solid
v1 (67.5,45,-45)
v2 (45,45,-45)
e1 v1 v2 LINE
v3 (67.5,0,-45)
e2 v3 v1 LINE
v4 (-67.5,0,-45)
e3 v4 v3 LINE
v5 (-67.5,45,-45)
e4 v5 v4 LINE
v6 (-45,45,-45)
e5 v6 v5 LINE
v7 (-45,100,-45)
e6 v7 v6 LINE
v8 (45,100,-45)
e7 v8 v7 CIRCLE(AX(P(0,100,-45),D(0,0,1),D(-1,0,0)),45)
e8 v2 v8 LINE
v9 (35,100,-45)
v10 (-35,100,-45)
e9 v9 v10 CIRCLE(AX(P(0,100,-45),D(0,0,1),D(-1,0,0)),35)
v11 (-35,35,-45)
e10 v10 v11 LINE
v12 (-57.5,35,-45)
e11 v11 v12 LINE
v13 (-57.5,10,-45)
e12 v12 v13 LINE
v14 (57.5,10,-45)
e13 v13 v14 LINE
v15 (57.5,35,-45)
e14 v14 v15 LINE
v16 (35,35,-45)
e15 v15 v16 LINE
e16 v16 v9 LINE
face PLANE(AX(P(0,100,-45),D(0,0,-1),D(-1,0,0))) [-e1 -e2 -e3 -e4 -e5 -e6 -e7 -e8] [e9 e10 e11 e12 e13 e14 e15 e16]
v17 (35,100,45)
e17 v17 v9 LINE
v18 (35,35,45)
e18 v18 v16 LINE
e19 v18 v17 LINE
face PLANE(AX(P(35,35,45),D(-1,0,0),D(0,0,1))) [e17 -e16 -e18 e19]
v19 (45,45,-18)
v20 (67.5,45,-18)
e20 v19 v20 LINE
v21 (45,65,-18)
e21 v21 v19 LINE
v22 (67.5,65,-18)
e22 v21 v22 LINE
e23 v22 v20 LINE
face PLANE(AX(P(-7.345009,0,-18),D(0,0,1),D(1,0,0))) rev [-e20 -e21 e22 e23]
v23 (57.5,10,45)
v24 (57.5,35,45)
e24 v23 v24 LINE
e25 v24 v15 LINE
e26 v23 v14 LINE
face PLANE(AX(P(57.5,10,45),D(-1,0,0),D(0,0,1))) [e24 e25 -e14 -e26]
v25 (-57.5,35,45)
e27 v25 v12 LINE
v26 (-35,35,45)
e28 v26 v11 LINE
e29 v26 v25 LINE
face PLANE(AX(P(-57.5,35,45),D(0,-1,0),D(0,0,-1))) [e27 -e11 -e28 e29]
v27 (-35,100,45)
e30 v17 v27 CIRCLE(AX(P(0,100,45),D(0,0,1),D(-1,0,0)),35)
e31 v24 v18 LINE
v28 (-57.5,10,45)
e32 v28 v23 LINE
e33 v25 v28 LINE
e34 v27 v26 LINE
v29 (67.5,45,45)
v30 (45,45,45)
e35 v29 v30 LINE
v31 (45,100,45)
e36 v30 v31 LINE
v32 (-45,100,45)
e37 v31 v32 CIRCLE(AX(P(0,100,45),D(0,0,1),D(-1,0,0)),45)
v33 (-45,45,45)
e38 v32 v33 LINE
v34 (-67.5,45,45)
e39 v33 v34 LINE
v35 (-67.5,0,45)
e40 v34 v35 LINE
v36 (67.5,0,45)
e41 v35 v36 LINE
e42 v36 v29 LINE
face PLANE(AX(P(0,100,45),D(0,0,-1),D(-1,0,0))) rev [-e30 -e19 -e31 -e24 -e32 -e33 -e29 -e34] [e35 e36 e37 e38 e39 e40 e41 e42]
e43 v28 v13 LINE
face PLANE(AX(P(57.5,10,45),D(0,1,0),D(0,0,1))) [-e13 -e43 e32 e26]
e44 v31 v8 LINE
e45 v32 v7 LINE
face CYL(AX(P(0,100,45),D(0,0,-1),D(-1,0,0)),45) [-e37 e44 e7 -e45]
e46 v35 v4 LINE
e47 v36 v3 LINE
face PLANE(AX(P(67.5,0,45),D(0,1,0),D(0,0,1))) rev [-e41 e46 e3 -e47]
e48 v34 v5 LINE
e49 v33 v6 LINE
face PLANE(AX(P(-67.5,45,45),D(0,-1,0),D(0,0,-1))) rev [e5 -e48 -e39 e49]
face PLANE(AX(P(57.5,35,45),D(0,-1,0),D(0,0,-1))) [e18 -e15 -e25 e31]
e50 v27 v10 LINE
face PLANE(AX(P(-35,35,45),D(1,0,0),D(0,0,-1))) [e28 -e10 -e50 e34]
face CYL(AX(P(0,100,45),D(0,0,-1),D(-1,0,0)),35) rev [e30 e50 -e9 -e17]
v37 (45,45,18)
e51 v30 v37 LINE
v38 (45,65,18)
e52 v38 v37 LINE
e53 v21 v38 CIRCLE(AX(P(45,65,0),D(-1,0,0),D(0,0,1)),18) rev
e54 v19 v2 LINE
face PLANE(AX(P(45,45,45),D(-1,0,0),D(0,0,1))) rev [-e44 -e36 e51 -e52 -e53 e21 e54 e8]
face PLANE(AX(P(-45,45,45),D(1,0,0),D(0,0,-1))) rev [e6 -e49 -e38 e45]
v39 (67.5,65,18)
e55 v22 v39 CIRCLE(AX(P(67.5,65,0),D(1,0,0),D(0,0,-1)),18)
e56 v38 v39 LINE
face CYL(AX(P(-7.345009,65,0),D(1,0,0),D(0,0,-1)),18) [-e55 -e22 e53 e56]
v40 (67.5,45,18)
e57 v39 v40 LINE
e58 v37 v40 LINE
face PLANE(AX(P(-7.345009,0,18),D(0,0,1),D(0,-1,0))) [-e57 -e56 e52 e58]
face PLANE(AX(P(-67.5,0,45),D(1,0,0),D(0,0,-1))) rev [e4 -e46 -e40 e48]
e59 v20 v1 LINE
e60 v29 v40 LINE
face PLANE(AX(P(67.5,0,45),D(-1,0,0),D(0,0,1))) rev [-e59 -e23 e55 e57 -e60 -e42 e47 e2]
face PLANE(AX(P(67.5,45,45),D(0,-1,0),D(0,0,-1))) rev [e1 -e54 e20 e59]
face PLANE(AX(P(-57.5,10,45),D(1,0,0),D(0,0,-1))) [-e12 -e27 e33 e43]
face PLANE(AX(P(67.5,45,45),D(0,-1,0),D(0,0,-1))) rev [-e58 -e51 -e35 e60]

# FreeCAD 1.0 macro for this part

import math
import FreeCAD as App
import Part
import Sketcher
from FreeCAD import Vector

doc = App.newDocument("Part")
body = doc.addObject("PartDesign::Body", "Body")

sketch1 = doc.addObject("Sketcher::SketchObject", "Sketch")
body.addObject(sketch1)
sketch1.AttachmentSupport = (doc.XY_Plane, [""])
sketch1.MapMode = "FlatFace"
sketch1.addGeometry(Part.LineSegment(Vector(-67.5, 0, 0), Vector(67.5, 0, 0)), False)
sketch1.addGeometry(Part.LineSegment(Vector(67.5, 0, 0), Vector(67.5, 45, 0)), False)
sketch1.addGeometry(Part.LineSegment(Vector(67.5, 45, 0), Vector(45, 45, 0)), False)
sketch1.addGeometry(Part.LineSegment(Vector(45, 45, 0), Vector(45, 100, 0)), False)
sketch1.addGeometry(Part.ArcOfCircle(Part.Circle(Vector(0, 100, 0), Vector(0, 0, 1), 45), math.radians(0), math.radians(180)), False)
sketch1.addGeometry(Part.LineSegment(Vector(-45, 100, 0), Vector(-45, 45, 0)), False)
sketch1.addGeometry(Part.LineSegment(Vector(-45, 45, 0), Vector(-67.5, 45, 0)), False)
sketch1.addGeometry(Part.LineSegment(Vector(-67.5, 45, 0), Vector(-67.5, 0, 0)), False)
sketch1.addGeometry(Part.LineSegment(Vector(35, 35, 0), Vector(57.5, 35, 0)), False)
sketch1.addGeometry(Part.LineSegment(Vector(57.5, 35, 0), Vector(57.5, 10, 0)), False)
sketch1.addGeometry(Part.LineSegment(Vector(57.5, 10, 0), Vector(-57.5, 10, 0)), False)
sketch1.addGeometry(Part.LineSegment(Vector(-57.5, 10, 0), Vector(-57.5, 35, 0)), False)
sketch1.addGeometry(Part.LineSegment(Vector(-57.5, 35, 0), Vector(-35, 35, 0)), False)
sketch1.addGeometry(Part.LineSegment(Vector(-35, 35, 0), Vector(-35, 100, 0)), False)
sketch1.addGeometry(Part.ArcOfCircle(Part.Circle(Vector(0, 100, 0), Vector(0, 0, 1), 35), math.radians(0), math.radians(180)), False)
sketch1.addGeometry(Part.LineSegment(Vector(35, 100, 0), Vector(35, 35, 0)), False)
sketch1.addConstraint(Sketcher.Constraint("Coincident", 0, 2, 1, 1))
sketch1.addConstraint(Sketcher.Constraint("Coincident", 1, 2, 2, 1))
sketch1.addConstraint(Sketcher.Constraint("Coincident", 2, 2, 3, 1))
sketch1.addConstraint(Sketcher.Constraint("Tangent", 3, 2, 4, 1))
sketch1.addConstraint(Sketcher.Constraint("Tangent", 4, 2, 5, 1))
sketch1.addConstraint(Sketcher.Constraint("Coincident", 5, 2, 6, 1))
sketch1.addConstraint(Sketcher.Constraint("Coincident", 6, 2, 7, 1))
sketch1.addConstraint(Sketcher.Constraint("Coincident", 7, 2, 0, 1))
sketch1.addConstraint(Sketcher.Constraint("Coincident", 8, 2, 9, 1))
sketch1.addConstraint(Sketcher.Constraint("Coincident", 9, 2, 10, 1))
sketch1.addConstraint(Sketcher.Constraint("Coincident", 10, 2, 11, 1))
sketch1.addConstraint(Sketcher.Constraint("Coincident", 11, 2, 12, 1))
sketch1.addConstraint(Sketcher.Constraint("Coincident", 12, 2, 13, 1))
sketch1.addConstraint(Sketcher.Constraint("Tangent", 13, 2, 14, 2))
sketch1.addConstraint(Sketcher.Constraint("Tangent", 14, 1, 15, 1))
sketch1.addConstraint(Sketcher.Constraint("Coincident", 15, 2, 8, 1))
sketch1.addConstraint(Sketcher.Constraint("Horizontal", 0))
sketch1.addConstraint(Sketcher.Constraint("Vertical", 1))
sketch1.addConstraint(Sketcher.Constraint("Horizontal", 2))
sketch1.addConstraint(Sketcher.Constraint("Vertical", 3))
sketch1.addConstraint(Sketcher.Constraint("Vertical", 5))
sketch1.addConstraint(Sketcher.Constraint("Horizontal", 6))
sketch1.addConstraint(Sketcher.Constraint("Vertical", 7))
sketch1.addConstraint(Sketcher.Constraint("Horizontal", 8))
sketch1.addConstraint(Sketcher.Constraint("Vertical", 9))
sketch1.addConstraint(Sketcher.Constraint("Horizontal", 10))
sketch1.addConstraint(Sketcher.Constraint("Vertical", 11))
sketch1.addConstraint(Sketcher.Constraint("Horizontal", 12))
sketch1.addConstraint(Sketcher.Constraint("Vertical", 13))
sketch1.addConstraint(Sketcher.Constraint("Vertical", 15))
sketch1.addConstraint(Sketcher.Constraint("Coincident", 14, 3, 4, 3))
sketch1.addConstraint(Sketcher.Constraint("Symmetric", 0, 2, 7, 2, -1, 1))
sketch1.addConstraint(Sketcher.Constraint("Symmetric", 2, 2, 5, 2, -2))
sketch1.addConstraint(Sketcher.Constraint("Symmetric", 8, 2, 11, 2, -2))
sketch1.addConstraint(Sketcher.Constraint("Equal", 6, 8))
sketch1.addConstraint(Sketcher.Constraint("Radius", 4, 45.0))
sketch1.addConstraint(Sketcher.Constraint("Radius", 14, 35.0))
sketch1.addConstraint(Sketcher.Constraint("DistanceX", 0, 1, 0, 2, 135.0))
sketch1.addConstraint(Sketcher.Constraint("DistanceY", 1, 1, 1, 2, 45.0))
sketch1.addConstraint(Sketcher.Constraint("DistanceY", 3, 1, 3, 2, 55.0))
sketch1.addConstraint(Sketcher.Constraint("DistanceY", 9, 2, 9, 1, 25.0))
sketch1.addConstraint(Sketcher.Constraint("DistanceY", 13, 1, 13, 2, 65.0))
pad1 = doc.addObject("PartDesign::Pad", "Pad")
body.addObject(pad1)
pad1.Profile = sketch1
pad1.Length = 90
pad1.Midplane = True

sketch2 = doc.addObject("Sketcher::SketchObject", "Sketch001")
body.addObject(sketch2)
sketch2.AttachmentSupport = (doc.YZ_Plane, [""])
sketch2.MapMode = "FlatFace"
sketch2.AttachmentOffset = App.Placement(Vector(0, 0, 67.5), App.Rotation())
sketch2.addGeometry(Part.LineSegment(Vector(45, 18, 0), Vector(45, -18, 0)), False)
sketch2.addGeometry(Part.LineSegment(Vector(45, -18, 0), Vector(65, -18, 0)), False)
sketch2.addGeometry(Part.ArcOfCircle(Part.Circle(Vector(65, 0, 0), Vector(0, 0, 1), 18), math.radians(-90), math.radians(90)), False)
sketch2.addGeometry(Part.LineSegment(Vector(65, 18, 0), Vector(45, 18, 0)), False)
sketch2.addConstraint(Sketcher.Constraint("Coincident", 0, 2, 1, 1))
sketch2.addConstraint(Sketcher.Constraint("Tangent", 1, 2, 2, 1))
sketch2.addConstraint(Sketcher.Constraint("Tangent", 2, 2, 3, 1))
sketch2.addConstraint(Sketcher.Constraint("Coincident", 3, 2, 0, 1))
sketch2.addConstraint(Sketcher.Constraint("Vertical", 0))
sketch2.addConstraint(Sketcher.Constraint("Horizontal", 1))
sketch2.addConstraint(Sketcher.Constraint("Horizontal", 3))
sketch2.addConstraint(Sketcher.Constraint("PointOnObject", 2, 3, -1))
sketch2.addConstraint(Sketcher.Constraint("Radius", 2, 18.0))
sketch2.addConstraint(Sketcher.Constraint("DistanceX", 1, 1, 1, 2, 20.0))
sketch2.addConstraint(Sketcher.Constraint("DistanceX", -1, 1, 2, 3, 65.0))
pad2 = doc.addObject("PartDesign::Pad", "Pad001")
body.addObject(pad2)
pad2.Profile = sketch2
pad2.Length = 22.5
pad2.Reversed = True

doc.recompute()
